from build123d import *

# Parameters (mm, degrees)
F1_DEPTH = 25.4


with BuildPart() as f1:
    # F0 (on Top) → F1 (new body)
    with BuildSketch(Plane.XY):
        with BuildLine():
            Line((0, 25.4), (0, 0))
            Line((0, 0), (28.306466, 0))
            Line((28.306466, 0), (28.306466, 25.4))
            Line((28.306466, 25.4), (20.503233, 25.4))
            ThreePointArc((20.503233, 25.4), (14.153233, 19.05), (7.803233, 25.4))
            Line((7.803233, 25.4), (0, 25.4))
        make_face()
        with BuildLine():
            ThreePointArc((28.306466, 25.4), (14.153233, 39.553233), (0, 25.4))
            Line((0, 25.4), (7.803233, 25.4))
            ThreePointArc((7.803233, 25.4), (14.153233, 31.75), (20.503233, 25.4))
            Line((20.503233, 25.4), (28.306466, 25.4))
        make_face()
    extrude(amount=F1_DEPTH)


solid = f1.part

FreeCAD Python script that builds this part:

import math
import FreeCAD as App
import Part
import Sketcher
from FreeCAD import Vector
Q = App.Units.Quantity

doc = App.newDocument("Part")
body = doc.addObject("PartDesign::Body", "Body")

# Sketch on XY plane
sketch1 = body.newObject("Sketcher::SketchObject", "Sketch")
sketch1.AttachmentSupport = (doc.getObject("XY_Plane"), [""])
sketch1.MapMode = "FlatFace"
sketch1.addGeometry([
    Part.LineSegment(Vector(0, 25, 0), Vector(0, 0, 0)),  # 0
    Part.LineSegment(Vector(0, 0, 0), Vector(28, 0, 0)),  # 1
    Part.LineSegment(Vector(28, 0, 0), Vector(28, 25, 0)),  # 2
    Part.ArcOfCircle(Part.Circle(Vector(14, 25, 0), Vector(0, 0, 1), 14), math.radians(0), math.radians(180)),  # 3
    Part.Circle(Vector(14, 25, 0), Vector(0, 0, 1), 6),  # 4
], False)
sketch1.addConstraint([
    Sketcher.Constraint("Coincident", 0, 2, 1, 1),
    Sketcher.Constraint("Coincident", 1, 2, 2, 1),
    Sketcher.Constraint("Tangent", 2, 2, 3, 1),
    Sketcher.Constraint("Tangent", 3, 2, 0, 1),
    Sketcher.Constraint("Vertical", 0),
    Sketcher.Constraint("Horizontal", 1),
    Sketcher.Constraint("Vertical", 2),
    Sketcher.Constraint("Coincident", 0, 2, -1, 1),
    Sketcher.Constraint("Coincident", 4, 3, 3, 3),
    Sketcher.Constraint("Diameter", 4, Q("0.5 in")),
    Sketcher.Constraint("DistanceY", 0, 2, 0, 1, Q("1 in")),
    Sketcher.Constraint("Radius", 3, 14.153233),
])
pad1 = body.newObject("PartDesign::Pad", "Pad")
pad1.Profile = sketch1
pad1.Length = Q("1 in")

doc.recompute()
